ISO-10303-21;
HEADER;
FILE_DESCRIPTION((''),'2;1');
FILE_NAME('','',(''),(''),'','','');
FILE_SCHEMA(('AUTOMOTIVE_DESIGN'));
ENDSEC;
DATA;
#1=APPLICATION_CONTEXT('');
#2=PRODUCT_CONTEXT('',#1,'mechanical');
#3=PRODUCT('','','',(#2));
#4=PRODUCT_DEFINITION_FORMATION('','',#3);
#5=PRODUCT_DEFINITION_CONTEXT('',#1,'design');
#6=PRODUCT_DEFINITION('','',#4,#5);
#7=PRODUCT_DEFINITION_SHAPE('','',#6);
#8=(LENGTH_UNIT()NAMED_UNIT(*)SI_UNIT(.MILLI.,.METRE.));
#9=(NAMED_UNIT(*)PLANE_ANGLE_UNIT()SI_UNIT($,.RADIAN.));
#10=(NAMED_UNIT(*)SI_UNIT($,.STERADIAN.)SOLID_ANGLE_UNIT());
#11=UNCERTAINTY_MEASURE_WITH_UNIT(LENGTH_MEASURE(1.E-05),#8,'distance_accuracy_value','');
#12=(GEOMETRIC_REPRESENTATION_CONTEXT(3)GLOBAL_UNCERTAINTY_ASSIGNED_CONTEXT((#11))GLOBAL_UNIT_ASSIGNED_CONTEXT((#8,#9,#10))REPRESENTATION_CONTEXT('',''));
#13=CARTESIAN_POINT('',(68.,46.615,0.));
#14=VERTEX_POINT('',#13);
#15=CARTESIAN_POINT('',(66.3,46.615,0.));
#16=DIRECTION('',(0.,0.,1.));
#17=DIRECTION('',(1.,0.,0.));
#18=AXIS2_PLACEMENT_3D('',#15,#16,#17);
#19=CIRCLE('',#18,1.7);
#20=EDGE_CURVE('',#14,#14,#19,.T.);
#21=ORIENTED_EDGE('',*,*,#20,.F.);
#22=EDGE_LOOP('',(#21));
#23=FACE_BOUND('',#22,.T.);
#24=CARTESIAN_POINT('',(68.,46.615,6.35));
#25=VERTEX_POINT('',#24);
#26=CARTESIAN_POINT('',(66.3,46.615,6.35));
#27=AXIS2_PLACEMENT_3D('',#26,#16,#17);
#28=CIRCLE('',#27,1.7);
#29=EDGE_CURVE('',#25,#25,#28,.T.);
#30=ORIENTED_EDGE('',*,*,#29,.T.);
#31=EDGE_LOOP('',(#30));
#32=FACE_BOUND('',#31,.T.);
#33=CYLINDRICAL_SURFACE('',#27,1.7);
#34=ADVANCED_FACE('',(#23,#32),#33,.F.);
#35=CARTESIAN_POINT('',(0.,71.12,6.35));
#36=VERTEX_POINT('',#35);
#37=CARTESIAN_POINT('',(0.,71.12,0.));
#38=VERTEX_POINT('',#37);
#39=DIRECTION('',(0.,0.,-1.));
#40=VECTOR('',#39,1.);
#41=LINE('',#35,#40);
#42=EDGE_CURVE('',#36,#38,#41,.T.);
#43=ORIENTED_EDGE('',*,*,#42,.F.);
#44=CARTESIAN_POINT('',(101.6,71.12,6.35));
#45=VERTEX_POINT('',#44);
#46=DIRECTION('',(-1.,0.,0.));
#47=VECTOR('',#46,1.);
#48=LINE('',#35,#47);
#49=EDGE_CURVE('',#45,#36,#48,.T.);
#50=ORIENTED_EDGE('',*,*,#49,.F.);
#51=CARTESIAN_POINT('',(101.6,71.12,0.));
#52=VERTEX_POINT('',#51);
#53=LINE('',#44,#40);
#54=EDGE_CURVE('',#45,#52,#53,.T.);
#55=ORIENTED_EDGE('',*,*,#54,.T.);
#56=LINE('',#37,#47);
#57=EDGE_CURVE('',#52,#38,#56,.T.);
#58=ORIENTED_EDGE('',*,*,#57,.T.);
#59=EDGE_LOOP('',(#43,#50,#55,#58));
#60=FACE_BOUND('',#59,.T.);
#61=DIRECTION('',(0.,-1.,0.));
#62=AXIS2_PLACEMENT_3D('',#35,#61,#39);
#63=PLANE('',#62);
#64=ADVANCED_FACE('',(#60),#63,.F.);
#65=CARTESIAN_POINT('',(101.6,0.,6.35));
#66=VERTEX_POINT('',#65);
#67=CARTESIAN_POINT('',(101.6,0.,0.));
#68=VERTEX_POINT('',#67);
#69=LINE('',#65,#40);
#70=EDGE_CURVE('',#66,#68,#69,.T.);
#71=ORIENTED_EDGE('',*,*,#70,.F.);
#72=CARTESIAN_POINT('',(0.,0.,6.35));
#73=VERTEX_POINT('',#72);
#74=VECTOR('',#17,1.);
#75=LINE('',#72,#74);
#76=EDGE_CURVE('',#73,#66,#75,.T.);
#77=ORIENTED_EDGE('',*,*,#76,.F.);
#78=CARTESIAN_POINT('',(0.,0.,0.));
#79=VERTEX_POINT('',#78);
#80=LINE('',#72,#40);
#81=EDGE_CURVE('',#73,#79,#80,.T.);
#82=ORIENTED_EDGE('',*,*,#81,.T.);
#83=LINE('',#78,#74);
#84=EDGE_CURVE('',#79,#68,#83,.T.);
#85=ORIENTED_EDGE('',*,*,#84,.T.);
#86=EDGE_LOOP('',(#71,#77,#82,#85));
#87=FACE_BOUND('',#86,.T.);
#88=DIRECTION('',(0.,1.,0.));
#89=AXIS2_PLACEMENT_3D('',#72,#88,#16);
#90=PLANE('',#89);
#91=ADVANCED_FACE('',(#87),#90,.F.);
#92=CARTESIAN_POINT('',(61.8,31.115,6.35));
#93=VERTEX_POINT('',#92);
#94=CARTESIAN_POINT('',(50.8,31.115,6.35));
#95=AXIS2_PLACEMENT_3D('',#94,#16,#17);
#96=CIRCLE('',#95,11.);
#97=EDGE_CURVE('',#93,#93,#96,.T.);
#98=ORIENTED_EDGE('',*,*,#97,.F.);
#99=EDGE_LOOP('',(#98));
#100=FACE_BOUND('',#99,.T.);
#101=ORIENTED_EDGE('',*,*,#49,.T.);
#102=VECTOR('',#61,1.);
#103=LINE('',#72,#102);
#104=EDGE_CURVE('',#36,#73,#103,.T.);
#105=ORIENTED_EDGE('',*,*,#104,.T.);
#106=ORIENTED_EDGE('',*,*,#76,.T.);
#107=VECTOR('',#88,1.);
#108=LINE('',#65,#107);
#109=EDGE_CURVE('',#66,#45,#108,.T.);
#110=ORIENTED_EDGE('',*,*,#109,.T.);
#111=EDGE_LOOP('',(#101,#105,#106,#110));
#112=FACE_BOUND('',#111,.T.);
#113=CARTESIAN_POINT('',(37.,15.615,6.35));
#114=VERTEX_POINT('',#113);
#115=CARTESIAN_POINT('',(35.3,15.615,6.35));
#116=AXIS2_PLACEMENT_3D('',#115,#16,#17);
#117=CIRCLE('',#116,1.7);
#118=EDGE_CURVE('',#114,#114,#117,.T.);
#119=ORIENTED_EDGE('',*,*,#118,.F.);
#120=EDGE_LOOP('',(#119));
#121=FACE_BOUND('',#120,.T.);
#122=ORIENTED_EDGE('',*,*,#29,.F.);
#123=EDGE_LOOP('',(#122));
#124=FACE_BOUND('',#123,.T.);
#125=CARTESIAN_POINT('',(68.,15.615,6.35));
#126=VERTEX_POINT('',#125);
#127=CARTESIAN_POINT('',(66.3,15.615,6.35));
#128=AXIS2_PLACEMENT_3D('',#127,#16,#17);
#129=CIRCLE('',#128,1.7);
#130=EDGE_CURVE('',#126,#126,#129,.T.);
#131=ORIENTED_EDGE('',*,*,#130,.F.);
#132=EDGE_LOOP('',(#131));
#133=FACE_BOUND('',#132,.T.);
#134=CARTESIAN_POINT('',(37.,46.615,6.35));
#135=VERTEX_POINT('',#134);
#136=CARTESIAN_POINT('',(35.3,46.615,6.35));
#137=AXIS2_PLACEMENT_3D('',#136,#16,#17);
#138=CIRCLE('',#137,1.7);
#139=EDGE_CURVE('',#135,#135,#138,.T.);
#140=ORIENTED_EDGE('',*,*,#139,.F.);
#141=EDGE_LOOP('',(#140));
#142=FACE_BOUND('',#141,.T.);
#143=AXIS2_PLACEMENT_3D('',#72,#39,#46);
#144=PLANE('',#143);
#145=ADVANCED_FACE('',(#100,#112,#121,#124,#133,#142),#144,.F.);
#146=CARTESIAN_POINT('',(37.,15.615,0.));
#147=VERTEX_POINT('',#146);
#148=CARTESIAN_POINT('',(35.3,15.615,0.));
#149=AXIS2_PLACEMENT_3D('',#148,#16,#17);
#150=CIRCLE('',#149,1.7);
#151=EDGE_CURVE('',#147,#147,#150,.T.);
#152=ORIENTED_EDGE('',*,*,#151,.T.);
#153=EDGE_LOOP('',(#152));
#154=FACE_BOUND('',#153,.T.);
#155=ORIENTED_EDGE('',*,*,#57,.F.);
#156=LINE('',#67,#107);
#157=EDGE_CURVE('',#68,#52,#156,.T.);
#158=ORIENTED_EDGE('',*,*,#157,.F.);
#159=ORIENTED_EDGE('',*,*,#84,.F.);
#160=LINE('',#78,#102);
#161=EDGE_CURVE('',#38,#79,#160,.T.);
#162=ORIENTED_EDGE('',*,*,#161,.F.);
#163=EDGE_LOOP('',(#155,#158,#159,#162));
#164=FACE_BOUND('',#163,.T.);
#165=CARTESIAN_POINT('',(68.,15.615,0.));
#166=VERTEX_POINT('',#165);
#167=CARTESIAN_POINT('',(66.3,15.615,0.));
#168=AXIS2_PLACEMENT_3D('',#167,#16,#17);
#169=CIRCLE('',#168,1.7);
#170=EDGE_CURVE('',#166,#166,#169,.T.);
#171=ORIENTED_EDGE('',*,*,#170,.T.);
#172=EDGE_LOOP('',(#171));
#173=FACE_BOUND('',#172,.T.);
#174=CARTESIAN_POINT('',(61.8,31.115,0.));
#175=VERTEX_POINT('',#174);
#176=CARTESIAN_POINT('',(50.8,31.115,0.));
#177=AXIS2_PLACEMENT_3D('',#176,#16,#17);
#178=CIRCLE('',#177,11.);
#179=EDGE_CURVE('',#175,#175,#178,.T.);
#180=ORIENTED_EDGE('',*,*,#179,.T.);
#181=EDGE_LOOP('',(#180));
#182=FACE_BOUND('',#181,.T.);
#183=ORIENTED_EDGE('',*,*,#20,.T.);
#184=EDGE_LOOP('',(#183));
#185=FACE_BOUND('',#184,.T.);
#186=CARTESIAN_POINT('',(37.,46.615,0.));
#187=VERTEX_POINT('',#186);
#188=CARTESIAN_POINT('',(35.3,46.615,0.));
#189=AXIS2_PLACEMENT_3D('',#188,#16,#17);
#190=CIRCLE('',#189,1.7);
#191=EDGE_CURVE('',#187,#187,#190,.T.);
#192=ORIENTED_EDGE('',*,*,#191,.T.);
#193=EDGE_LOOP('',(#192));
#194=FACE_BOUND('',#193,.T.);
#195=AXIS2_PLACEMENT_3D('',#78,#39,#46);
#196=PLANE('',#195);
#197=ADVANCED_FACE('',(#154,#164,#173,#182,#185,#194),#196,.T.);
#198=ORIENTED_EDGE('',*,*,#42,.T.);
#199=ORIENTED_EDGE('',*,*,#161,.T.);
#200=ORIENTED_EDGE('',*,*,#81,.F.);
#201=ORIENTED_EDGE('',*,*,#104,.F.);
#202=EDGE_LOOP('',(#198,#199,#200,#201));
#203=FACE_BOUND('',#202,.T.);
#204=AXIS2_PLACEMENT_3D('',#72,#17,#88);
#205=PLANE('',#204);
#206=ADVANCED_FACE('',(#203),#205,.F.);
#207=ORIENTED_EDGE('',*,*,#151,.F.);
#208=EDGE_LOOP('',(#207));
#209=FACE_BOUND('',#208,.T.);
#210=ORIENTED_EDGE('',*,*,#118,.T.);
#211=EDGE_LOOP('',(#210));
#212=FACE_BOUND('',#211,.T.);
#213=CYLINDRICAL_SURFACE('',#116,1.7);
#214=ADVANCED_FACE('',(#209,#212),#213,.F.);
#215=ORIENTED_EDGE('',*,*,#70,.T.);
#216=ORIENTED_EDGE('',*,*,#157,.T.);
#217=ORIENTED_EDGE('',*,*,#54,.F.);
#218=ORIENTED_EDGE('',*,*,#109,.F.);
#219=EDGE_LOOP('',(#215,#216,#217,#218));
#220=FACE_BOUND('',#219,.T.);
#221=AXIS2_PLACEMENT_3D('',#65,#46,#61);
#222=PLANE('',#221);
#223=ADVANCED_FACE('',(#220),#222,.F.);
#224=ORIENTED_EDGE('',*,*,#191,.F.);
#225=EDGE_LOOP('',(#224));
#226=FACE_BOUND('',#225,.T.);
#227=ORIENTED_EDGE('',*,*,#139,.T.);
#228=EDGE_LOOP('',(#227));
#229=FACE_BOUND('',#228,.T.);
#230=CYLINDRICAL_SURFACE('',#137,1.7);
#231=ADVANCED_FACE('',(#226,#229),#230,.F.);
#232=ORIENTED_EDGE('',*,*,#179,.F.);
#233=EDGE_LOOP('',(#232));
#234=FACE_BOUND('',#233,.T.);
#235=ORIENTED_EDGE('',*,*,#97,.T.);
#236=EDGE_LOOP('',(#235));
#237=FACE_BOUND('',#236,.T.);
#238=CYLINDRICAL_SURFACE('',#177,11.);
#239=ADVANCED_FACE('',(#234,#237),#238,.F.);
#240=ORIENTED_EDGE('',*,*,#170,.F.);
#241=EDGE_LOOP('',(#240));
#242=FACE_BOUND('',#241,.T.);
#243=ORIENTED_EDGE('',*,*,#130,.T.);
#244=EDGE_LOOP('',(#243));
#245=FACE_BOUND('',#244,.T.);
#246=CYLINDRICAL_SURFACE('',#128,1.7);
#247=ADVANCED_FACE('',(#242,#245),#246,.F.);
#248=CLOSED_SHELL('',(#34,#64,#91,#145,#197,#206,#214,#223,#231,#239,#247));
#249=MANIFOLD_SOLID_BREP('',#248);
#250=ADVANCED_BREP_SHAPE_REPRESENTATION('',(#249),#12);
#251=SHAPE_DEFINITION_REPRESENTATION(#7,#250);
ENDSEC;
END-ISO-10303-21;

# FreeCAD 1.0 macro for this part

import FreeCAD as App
import Part
import Sketcher
Q = App.Units.Quantity


def add_polygon(sketch, points):
    """Adds a closed chain of lines whose ends are joined by coincident constraints."""
    first, n = sketch.GeometryCount, len(points)
    for a, b in zip(points, points[1:] + points[:1]):
        sketch.addGeometry(Part.LineSegment(App.Vector(*a, 0), App.Vector(*b, 0)), False)
    for i in range(n):
        sketch.addConstraint(Sketcher.Constraint("Coincident", first + i, 2, first + (i + 1) % n, 1))

doc = App.newDocument("Part")
body = doc.addObject("PartDesign::Body", "Body")

# Sketch on XY plane
sketch1 = body.newObject("Sketcher::SketchObject", "Sketch")
sketch1.AttachmentSupport = (doc.getObject("XY_Plane"), [""])
sketch1.MapMode = "FlatFace"
add_polygon(sketch1, [(0, 71.12), (0, 0), (101.6, 0), (101.6, 71.12)])  # lines 0-3
sketch1.addConstraint([
    Sketcher.Constraint("Vertical", 0),
    Sketcher.Constraint("Horizontal", 1),
    Sketcher.Constraint("Vertical", 2),
    Sketcher.Constraint("Horizontal", 3),
    Sketcher.Constraint("Coincident", 0, 2, -1, 1),
    Sketcher.Constraint("DistanceX", 1, 1, 1, 2, Q("4 in")),
    Sketcher.Constraint("DistanceY", 0, 2, 0, 1, Q("2.8 in")),
])
pad1 = body.newObject("PartDesign::Pad", "Pad")
pad1.Profile = sketch1
pad1.Length = Q("0.25 in")

# Sketch on XY plane
sketch2 = body.newObject("Sketcher::SketchObject", "Sketch001")
sketch2.AttachmentSupport = (doc.getObject("XY_Plane"), [""])
sketch2.MapMode = "FlatFace"
sketch2.AttachmentOffset = App.Placement(App.Vector(0, 0, 0.25 * 25.4), App.Rotation())
sketch2.addGeometry([
    Part.Circle(App.Vector(35.3, 46.615, 0), App.Vector(0, 0, 1), 1.7),
    Part.Circle(App.Vector(66.3, 15.615, 0), App.Vector(0, 0, 1), 1.7),
    Part.Circle(App.Vector(35.3, 15.615, 0), App.Vector(0, 0, 1), 1.7),
    Part.Circle(App.Vector(66.3, 46.615, 0), App.Vector(0, 0, 1), 1.7),
], False)
sketch2.addConstraint([
    Sketcher.Constraint("Equal", 0, 1),
    Sketcher.Constraint("Equal", 1, 2),
    Sketcher.Constraint("Equal", 2, 3),
    Sketcher.Constraint("Horizontal", 1, 3, 2, 3),
    Sketcher.Constraint("Horizontal", 0, 3, 3, 3),
    Sketcher.Constraint("Vertical", 0, 3, 2, 3),
    Sketcher.Constraint("Vertical", 1, 3, 3, 3),
    Sketcher.Constraint("Diameter", 0, Q("3.4 mm")),
    Sketcher.Constraint("DistanceX", -1, 1, 0, 3, Q("35.3 mm")),
    Sketcher.Constraint("DistanceY", -1, 1, 0, 3, Q("46.615 mm")),
    Sketcher.Constraint("DistanceX", -1, 1, 1, 3, Q("66.3 mm")),
    Sketcher.Constraint("DistanceY", -1, 1, 1, 3, Q("15.615 mm")),
])
doc.recompute()
hole = body.newObject("PartDesign::Hole", "Hole")
hole.Profile = sketch2
hole.ThreadType = "None"
hole.Diameter = 3.4
hole.DepthType = "ThroughAll"

# Sketch on XY plane
sketch3 = body.newObject("Sketcher::SketchObject", "Sketch002")
sketch3.AttachmentSupport = (doc.getObject("XY_Plane"), [""])
sketch3.MapMode = "FlatFace"
sketch3.AttachmentOffset = App.Placement(App.Vector(0, 0, 0.25 * 25.4), App.Rotation())
sketch3.addGeometry(Part.Circle(App.Vector(50.8, 31.115, 0), App.Vector(0, 0, 1), 11), False)
sketch3.addConstraint([
    Sketcher.Constraint("DistanceX", -1, 1, 0, 3, Q("2 in")),
    Sketcher.Constraint("Diameter", 0, Q("22 mm")),
    Sketcher.Constraint("DistanceY", -1, 1, 0, 3, Q("1.225 in")),
])
pocket1 = body.newObject("PartDesign::Pocket", "Pocket")
pocket1.Profile = sketch3
pocket1.Type = "ThroughAll"

doc.recompute()
